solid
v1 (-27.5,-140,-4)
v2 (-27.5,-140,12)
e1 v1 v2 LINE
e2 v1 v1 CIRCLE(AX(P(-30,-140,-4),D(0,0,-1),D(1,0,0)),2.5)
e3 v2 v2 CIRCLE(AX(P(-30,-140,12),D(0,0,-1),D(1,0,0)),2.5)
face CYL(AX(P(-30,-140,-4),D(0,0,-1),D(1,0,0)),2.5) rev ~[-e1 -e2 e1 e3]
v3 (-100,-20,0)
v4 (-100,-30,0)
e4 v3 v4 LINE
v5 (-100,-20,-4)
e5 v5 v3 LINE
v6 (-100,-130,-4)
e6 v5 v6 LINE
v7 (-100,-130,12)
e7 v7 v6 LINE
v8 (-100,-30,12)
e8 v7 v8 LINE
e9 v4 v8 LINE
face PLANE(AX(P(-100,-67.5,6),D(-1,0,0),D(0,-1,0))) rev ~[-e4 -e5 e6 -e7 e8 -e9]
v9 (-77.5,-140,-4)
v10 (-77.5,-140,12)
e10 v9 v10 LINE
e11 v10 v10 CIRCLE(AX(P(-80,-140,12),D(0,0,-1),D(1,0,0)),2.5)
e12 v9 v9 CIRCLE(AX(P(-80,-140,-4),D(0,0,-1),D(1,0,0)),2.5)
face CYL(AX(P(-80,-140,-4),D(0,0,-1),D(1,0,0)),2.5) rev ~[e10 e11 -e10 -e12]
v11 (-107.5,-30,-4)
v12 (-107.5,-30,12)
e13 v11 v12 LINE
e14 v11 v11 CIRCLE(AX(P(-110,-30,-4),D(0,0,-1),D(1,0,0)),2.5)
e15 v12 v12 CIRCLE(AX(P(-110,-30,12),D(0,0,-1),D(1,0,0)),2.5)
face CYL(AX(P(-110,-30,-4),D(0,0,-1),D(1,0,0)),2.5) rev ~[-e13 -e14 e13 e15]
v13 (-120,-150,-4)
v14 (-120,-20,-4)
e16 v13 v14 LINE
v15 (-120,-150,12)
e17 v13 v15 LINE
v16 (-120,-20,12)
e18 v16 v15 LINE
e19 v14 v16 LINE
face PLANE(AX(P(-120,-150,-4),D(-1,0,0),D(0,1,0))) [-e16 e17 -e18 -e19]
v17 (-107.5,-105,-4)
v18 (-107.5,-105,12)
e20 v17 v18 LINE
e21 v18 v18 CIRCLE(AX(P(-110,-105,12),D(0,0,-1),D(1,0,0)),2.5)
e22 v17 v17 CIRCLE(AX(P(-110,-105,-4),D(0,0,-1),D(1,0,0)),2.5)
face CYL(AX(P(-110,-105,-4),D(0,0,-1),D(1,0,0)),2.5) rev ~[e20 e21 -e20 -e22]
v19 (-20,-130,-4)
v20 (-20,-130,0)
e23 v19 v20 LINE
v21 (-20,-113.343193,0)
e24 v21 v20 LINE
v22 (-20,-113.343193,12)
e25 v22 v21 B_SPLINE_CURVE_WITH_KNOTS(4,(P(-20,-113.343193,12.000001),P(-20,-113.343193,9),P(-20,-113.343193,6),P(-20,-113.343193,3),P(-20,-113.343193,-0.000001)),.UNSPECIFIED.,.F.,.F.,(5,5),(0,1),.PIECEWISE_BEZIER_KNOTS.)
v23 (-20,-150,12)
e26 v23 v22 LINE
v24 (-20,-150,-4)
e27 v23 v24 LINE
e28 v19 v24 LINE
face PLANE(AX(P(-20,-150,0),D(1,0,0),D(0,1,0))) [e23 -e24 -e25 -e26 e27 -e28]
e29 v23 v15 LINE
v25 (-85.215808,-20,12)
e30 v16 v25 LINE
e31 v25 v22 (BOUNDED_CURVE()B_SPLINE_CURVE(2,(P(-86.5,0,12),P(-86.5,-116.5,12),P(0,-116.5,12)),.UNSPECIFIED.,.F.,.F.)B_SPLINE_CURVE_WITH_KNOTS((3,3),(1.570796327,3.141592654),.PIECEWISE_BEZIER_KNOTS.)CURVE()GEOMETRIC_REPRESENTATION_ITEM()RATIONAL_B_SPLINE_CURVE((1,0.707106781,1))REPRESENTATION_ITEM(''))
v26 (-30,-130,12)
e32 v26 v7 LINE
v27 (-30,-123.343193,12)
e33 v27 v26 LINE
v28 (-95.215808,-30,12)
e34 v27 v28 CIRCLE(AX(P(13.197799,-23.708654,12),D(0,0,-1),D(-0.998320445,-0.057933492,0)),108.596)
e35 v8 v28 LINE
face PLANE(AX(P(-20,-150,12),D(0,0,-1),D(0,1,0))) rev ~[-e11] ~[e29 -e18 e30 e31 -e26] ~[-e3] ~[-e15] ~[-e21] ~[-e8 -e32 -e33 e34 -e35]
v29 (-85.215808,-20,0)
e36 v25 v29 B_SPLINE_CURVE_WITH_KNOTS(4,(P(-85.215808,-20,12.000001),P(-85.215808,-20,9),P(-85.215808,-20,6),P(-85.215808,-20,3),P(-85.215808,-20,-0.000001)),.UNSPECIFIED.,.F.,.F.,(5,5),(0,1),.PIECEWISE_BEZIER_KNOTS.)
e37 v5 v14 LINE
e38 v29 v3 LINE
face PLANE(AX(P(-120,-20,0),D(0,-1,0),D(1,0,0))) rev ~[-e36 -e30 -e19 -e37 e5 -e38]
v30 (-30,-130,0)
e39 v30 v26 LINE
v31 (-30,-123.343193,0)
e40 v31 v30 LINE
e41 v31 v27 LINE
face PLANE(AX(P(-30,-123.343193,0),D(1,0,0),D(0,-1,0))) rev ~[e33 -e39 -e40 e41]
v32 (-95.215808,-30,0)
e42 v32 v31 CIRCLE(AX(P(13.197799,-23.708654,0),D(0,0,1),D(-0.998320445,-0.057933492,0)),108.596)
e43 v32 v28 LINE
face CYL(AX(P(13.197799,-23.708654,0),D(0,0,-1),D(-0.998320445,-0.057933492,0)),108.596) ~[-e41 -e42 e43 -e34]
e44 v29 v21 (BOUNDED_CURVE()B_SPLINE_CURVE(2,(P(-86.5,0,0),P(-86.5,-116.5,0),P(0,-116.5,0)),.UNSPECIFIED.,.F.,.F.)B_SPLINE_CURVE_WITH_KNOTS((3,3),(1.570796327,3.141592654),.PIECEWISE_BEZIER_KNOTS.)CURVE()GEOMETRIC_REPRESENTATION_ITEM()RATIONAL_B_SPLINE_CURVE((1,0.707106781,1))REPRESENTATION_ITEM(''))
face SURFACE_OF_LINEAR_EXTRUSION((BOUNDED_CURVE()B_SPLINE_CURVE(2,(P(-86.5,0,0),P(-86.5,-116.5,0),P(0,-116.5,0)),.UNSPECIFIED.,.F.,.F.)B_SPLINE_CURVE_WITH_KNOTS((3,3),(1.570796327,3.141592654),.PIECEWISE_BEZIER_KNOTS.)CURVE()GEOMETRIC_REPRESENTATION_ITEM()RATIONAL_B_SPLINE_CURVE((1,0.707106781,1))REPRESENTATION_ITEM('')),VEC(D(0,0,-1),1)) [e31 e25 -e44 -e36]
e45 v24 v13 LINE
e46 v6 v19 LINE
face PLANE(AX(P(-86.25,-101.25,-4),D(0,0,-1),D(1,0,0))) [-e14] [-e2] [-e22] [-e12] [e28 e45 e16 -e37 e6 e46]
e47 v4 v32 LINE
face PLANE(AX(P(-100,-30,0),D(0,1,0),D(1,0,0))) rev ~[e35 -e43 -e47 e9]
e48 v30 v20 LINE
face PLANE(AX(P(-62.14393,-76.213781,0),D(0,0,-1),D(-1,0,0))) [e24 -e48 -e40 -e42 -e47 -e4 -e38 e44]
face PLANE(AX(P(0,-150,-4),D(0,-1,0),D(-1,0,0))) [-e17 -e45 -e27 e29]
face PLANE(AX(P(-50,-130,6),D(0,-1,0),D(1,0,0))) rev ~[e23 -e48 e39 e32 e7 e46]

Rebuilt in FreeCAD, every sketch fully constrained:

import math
import FreeCAD as App
import Part
import Sketcher
from FreeCAD import Vector


def add_polygon(sketch, points):
    """Adds a closed chain of lines whose ends are joined by coincident constraints."""
    first, n = sketch.GeometryCount, len(points)
    for a, b in zip(points, points[1:] + points[:1]):
        sketch.addGeometry(Part.LineSegment(App.Vector(*a, 0), App.Vector(*b, 0)), False)
    for i in range(n):
        sketch.addConstraint(Sketcher.Constraint("Coincident", first + i, 2, first + (i + 1) % n, 1))

doc = App.newDocument("Part")
body = doc.addObject("PartDesign::Body", "Body")

# Sketch on XY plane
sketch1 = doc.addObject("Sketcher::SketchObject", "Sketch")
body.addObject(sketch1)
sketch1.AttachmentSupport = (doc.XY_Plane, [""])
sketch1.MapMode = "FlatFace"
sketch1.addGeometry([
    Part.BSplineCurve([Vector(-86.5, 0, 0), Vector(-86.5, -116.5, 0), Vector(0, -116.5, 0)], [3, 3], [1.570796327, 3.141592654], False, 2, [1, 0.707106781, 1], False),  # 0
    Part.LineSegment(Vector(-86.5, 0, 0), Vector(-100, 0, 0)),  # 1
    Part.LineSegment(Vector(-100, 0, 0), Vector(-100, -130, 0)),  # 2
    Part.LineSegment(Vector(-100, -130, 0), Vector(0, -130, 0)),  # 3
    Part.LineSegment(Vector(0, -130, 0), Vector(0, -116.5, 0)),  # 4
], False)
sketch1.addConstraint([
    Sketcher.Constraint("Block", 0),
    Sketcher.Constraint("Coincident", 0, 1, 1, 1),
    Sketcher.Constraint("Coincident", 1, 2, 2, 1),
    Sketcher.Constraint("Coincident", 2, 2, 3, 1),
    Sketcher.Constraint("Coincident", 3, 2, 4, 1),
    Sketcher.Constraint("Coincident", 4, 2, 0, 2),
    Sketcher.Constraint("Horizontal", 1),
    Sketcher.Constraint("Vertical", 2),
    Sketcher.Constraint("Horizontal", 3),
    Sketcher.Constraint("Vertical", 4),
    Sketcher.Constraint("Equal", 1, 4),
    Sketcher.Constraint("DistanceX", 3, 1, 3, 2, 100.0),
])
pad1 = doc.addObject("PartDesign::Pad", "Pad")
body.addObject(pad1)
pad1.Profile = sketch1
pad1.Length = 12

# Sketch on XZ plane
sketch2 = doc.addObject("Sketcher::SketchObject", "Sketch001")
body.addObject(sketch2)
sketch2.AttachmentSupport = (doc.XZ_Plane, [""])
sketch2.MapMode = "FlatFace"
sketch2.AttachmentOffset = App.Placement(Vector(0, 0, 130), App.Rotation())
add_polygon(sketch2, [(-100, 16), (-100, -4), (0, -4), (0, 16)])  # lines 0-3
sketch2.addConstraint([
    Sketcher.Constraint("Vertical", 0),
    Sketcher.Constraint("Horizontal", 1),
    Sketcher.Constraint("Vertical", 2),
    Sketcher.Constraint("Horizontal", 3),
    Sketcher.Constraint("PointOnObject", 1, 2, -2),
    Sketcher.Constraint("DistanceX", 1, 1, 1, 2, 100.0),
    Sketcher.Constraint("DistanceY", 0, 2, 0, 1, 20.0),
    Sketcher.Constraint("DistanceY", 0, 2, -1, 1, 4.0),
])
pad2 = doc.addObject("PartDesign::Pad", "Pad001")
body.addObject(pad2)
pad2.Profile = sketch2
pad2.Length = 5

# Sketch on YZ plane
sketch3 = doc.addObject("Sketcher::SketchObject", "Sketch002")
body.addObject(sketch3)
sketch3.AttachmentSupport = (doc.YZ_Plane, [""])
sketch3.MapMode = "FlatFace"
sketch3.AttachmentOffset = App.Placement(Vector(0, 0, -100), App.Rotation())
add_polygon(sketch3, [(0, 16), (0, -4), (-135, -4), (-135, 16)])  # lines 0-3
sketch3.addConstraint([
    Sketcher.Constraint("Vertical", 0),
    Sketcher.Constraint("Horizontal", 1),
    Sketcher.Constraint("Vertical", 2),
    Sketcher.Constraint("Horizontal", 3),
    Sketcher.Constraint("PointOnObject", 0, 2, -2),
    Sketcher.Constraint("DistanceX", 1, 2, 1, 1, 135.0),
    Sketcher.Constraint("DistanceY", 0, 2, 0, 1, 20.0),
    Sketcher.Constraint("DistanceY", 0, 2, -1, 1, 4.0),
])
pad3 = doc.addObject("PartDesign::Pad", "Pad002")
body.addObject(pad3)
pad3.Profile = sketch3
pad3.Length = 5
pad3.Reversed = True

# Sketch on XY plane
sketch4 = doc.addObject("Sketcher::SketchObject", "Sketch003")
body.addObject(sketch4)
sketch4.AttachmentSupport = (doc.XY_Plane, [""])
sketch4.MapMode = "FlatFace"
sketch4.AttachmentOffset = App.Placement(Vector(0, 0, -4), App.Rotation())
add_polygon(sketch4, [(0, -135), (0, -150), (-120, -150), (-120, 0), (-105, 0), (-105, -135)])  # lines 0-5
sketch4.addGeometry(Part.Circle(Vector(-110, -30, 0), Vector(0, 0, 1), 2.5), False)  # 6
sketch4.addGeometry(Part.Circle(Vector(-110, -105, 0), Vector(0, 0, 1), 2.5), False)  # 7
sketch4.addGeometry(Part.Circle(Vector(-80, -140, 0), Vector(0, 0, 1), 2.5), False)  # 8
sketch4.addGeometry(Part.Circle(Vector(-30, -140, 0), Vector(0, 0, 1), 2.5), False)  # 9
sketch4.addConstraint([
    Sketcher.Constraint("Vertical", 0),
    Sketcher.Constraint("Horizontal", 1),
    Sketcher.Constraint("Vertical", 2),
    Sketcher.Constraint("Horizontal", 3),
    Sketcher.Constraint("Vertical", 4),
    Sketcher.Constraint("Horizontal", 5),
    Sketcher.Constraint("Equal", 6, 7),
    Sketcher.Constraint("Equal", 7, 8),
    Sketcher.Constraint("Equal", 8, 9),
    Sketcher.Constraint("PointOnObject", 0, 2, -2),
    Sketcher.Constraint("PointOnObject", 2, 2, -1),
    Sketcher.Constraint("Horizontal", 8, 3, 9, 3),
    Sketcher.Constraint("Vertical", 6, 3, 7, 3),
    Sketcher.Constraint("Equal", 3, 0),
    Sketcher.Constraint("Diameter", 6, 5.0),
    Sketcher.Constraint("DistanceX", 1, 2, 1, 1, 120.0),
    Sketcher.Constraint("DistanceX", 3, 1, 3, 2, 15.0),
    Sketcher.Constraint("DistanceY", 2, 1, 2, 2, 150.0),
    Sketcher.Constraint("DistanceX", 6, 3, -1, 1, 110.0),
    Sketcher.Constraint("DistanceY", 6, 3, -1, 1, 30.0),
    Sketcher.Constraint("DistanceY", 7, 3, -1, 1, 105.0),
    Sketcher.Constraint("DistanceX", 8, 3, -1, 1, 80.0),
    Sketcher.Constraint("DistanceY", 8, 3, -1, 1, 140.0),
    Sketcher.Constraint("DistanceX", 9, 3, -1, 1, 30.0),
])
pad4 = doc.addObject("PartDesign::Pad", "Pad003")
body.addObject(pad4)
pad4.Profile = sketch4
pad4.Length = 25

# Sketch on XY plane
sketch5 = doc.addObject("Sketcher::SketchObject", "Sketch004")
body.addObject(sketch5)
sketch5.AttachmentSupport = (doc.XY_Plane, [""])
sketch5.MapMode = "FlatFace"
sketch5.AttachmentOffset = App.Placement(Vector(0, 0, 16), App.Rotation())
add_polygon(sketch5, [(-90, 0), (-105, 0), (-105, -135), (0, -135), (0, -120), (-90, -120)])  # lines 0-5
sketch5.addConstraint([
    Sketcher.Constraint("Horizontal", 0),
    Sketcher.Constraint("Vertical", 1),
    Sketcher.Constraint("Horizontal", 2),
    Sketcher.Constraint("Vertical", 3),
    Sketcher.Constraint("Horizontal", 4),
    Sketcher.Constraint("Vertical", 5),
    Sketcher.Constraint("PointOnObject", 0, 2, -1),
    Sketcher.Constraint("PointOnObject", 2, 2, -2),
    Sketcher.Constraint("Equal", 0, 3),
    Sketcher.Constraint("DistanceX", 0, 2, 0, 1, 15.0),
    Sketcher.Constraint("DistanceX", 2, 1, 2, 2, 105.0),
    Sketcher.Constraint("DistanceY", 1, 2, 1, 1, 135.0),
])
pad5 = doc.addObject("PartDesign::Pad", "Pad004")
body.addObject(pad5)
pad5.Profile = sketch5
pad5.Length = 5

# Sketch on XY plane
sketch6 = doc.addObject("Sketcher::SketchObject", "Sketch005")
body.addObject(sketch6)
sketch6.AttachmentSupport = (doc.XY_Plane, [""])
sketch6.MapMode = "FlatFace"
add_polygon(sketch6, [(0, 0), (-120, 0), (-120, -20), (-20, -20), (-20, -150), (0, -150)])  # lines 0-5
sketch6.addConstraint([
    Sketcher.Constraint("Horizontal", 0),
    Sketcher.Constraint("Vertical", 1),
    Sketcher.Constraint("Horizontal", 2),
    Sketcher.Constraint("Vertical", 3),
    Sketcher.Constraint("Horizontal", 4),
    Sketcher.Constraint("Vertical", 5),
    Sketcher.Constraint("Coincident", 5, 2, -1, 1),
    Sketcher.Constraint("Equal", 4, 1),
    Sketcher.Constraint("DistanceX", 0, 2, 0, 1, 120.0),
    Sketcher.Constraint("DistanceX", 2, 1, 2, 2, 100.0),
    Sketcher.Constraint("DistanceY", 3, 2, 3, 1, 130.0),
])
pocket1 = doc.addObject("PartDesign::Pocket", "Pocket")
body.addObject(pocket1)
pocket1.Profile = sketch6
pocket1.Length = 50
pocket1.Midplane = True

# Sketch on YZ plane
sketch7 = doc.addObject("Sketcher::SketchObject", "Sketch006")
body.addObject(sketch7)
sketch7.AttachmentSupport = (doc.YZ_Plane, [""])
sketch7.MapMode = "FlatFace"
sketch7.AttachmentOffset = App.Placement(Vector(0, 0, -20), App.Rotation())
add_polygon(sketch7, [(-150, 21), (-150, 12), (-20, 12), (-20, 21)])  # lines 0-3
sketch7.addConstraint([
    Sketcher.Constraint("Vertical", 0),
    Sketcher.Constraint("Horizontal", 1),
    Sketcher.Constraint("Vertical", 2),
    Sketcher.Constraint("Horizontal", 3),
    Sketcher.Constraint("DistanceX", 1, 1, 1, 2, 130.0),
    Sketcher.Constraint("DistanceY", 0, 2, 0, 1, 9.0),
    Sketcher.Constraint("DistanceX", 0, 2, -1, 1, 150.0),
    Sketcher.Constraint("DistanceY", -1, 1, 0, 2, 12.0),
])
pocket2 = doc.addObject("PartDesign::Pocket", "Pocket001")
body.addObject(pocket2)
pocket2.Profile = sketch7
pocket2.Type = "ThroughAll"

# Sketch on XY plane
sketch8 = doc.addObject("Sketcher::SketchObject", "Sketch007")
body.addObject(sketch8)
sketch8.AttachmentSupport = (doc.XY_Plane, [""])
sketch8.MapMode = "FlatFace"
sketch8.addGeometry([
    Part.LineSegment(Vector(-30, -130, 0), Vector(-100, -130, 0)),  # 0
    Part.LineSegment(Vector(-100, -130, 0), Vector(-100, -30, 0)),  # 1
    Part.LineSegment(Vector(-100, -30, 0), Vector(-95.215808, -30, 0)),  # 2
    Part.ArcOfCircle(Part.Circle(Vector(13.197799, -23.708654, 0), Vector(0, 0, 1), 108.596), math.radians(-176.678796), math.radians(-113.439746)),  # 3
    Part.LineSegment(Vector(-30, -123.343193, 0), Vector(-30, -130, 0)),  # 4
], False)
sketch8.addConstraint([
    Sketcher.Constraint("Coincident", 0, 2, 1, 1),
    Sketcher.Constraint("Coincident", 1, 2, 2, 1),
    Sketcher.Constraint("Coincident", 2, 2, 3, 1),
    Sketcher.Constraint("Coincident", 3, 2, 4, 1),
    Sketcher.Constraint("Coincident", 4, 2, 0, 1),
    Sketcher.Constraint("Horizontal", 0),
    Sketcher.Constraint("Vertical", 1),
    Sketcher.Constraint("Horizontal", 2),
    Sketcher.Constraint("Vertical", 4),
    Sketcher.Constraint("DistanceX", 0, 2, 0, 1, 70.0),
    Sketcher.Constraint("DistanceY", 1, 1, 1, 2, 100.0),
    Sketcher.Constraint("DistanceX", 0, 2, -1, 1, 100.0),
    Sketcher.Constraint("DistanceY", 0, 2, -1, 1, 130.0),
    Sketcher.Constraint("Radius", 3, 108.596),
    Sketcher.Constraint("DistanceX", -1, 1, 3, 3, 13.197799),
    Sketcher.Constraint("DistanceX", 2, 1, 2, 2, 4.784192),
])
pocket3 = doc.addObject("PartDesign::Pocket", "Pocket002")
body.addObject(pocket3)
pocket3.Profile = sketch8
pocket3.Type = "ThroughAll"
pocket3.Reversed = True

doc.recompute()
